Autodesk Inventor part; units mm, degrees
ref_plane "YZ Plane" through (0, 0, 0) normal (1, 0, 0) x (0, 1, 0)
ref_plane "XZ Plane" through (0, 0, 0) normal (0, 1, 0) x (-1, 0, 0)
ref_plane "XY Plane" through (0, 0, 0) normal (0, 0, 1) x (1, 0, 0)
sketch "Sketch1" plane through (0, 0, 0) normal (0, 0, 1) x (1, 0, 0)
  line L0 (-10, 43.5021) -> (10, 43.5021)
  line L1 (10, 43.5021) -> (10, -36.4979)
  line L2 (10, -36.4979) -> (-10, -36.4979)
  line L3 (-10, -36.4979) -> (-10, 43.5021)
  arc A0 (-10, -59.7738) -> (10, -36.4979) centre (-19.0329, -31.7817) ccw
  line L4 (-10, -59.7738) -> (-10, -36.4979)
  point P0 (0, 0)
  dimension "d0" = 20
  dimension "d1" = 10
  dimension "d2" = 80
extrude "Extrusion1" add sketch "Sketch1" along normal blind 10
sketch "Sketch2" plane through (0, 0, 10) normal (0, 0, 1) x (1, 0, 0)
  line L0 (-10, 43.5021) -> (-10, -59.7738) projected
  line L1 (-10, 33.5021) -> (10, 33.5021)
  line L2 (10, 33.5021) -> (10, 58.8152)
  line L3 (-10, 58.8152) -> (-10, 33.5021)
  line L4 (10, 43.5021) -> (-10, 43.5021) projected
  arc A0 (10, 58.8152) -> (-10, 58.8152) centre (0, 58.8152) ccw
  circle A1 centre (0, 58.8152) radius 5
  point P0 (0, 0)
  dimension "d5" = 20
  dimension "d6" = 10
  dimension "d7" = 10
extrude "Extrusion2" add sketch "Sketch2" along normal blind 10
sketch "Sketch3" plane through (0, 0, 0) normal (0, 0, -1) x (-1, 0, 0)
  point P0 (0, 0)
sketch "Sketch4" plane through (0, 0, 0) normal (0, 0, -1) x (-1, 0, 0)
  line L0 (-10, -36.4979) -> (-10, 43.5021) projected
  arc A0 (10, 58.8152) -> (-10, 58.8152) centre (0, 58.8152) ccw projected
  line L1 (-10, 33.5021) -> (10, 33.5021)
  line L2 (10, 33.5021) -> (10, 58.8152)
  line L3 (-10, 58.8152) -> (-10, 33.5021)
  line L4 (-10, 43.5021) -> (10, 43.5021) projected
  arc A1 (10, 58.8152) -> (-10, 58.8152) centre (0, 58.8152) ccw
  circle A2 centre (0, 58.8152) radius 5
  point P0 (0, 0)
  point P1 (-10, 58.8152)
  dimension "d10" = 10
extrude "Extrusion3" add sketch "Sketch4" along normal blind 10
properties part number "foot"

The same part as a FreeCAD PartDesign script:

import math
import FreeCAD as App
import Part
import Sketcher

V = App.Vector
Q = App.Units.Quantity

doc = App.newDocument("Part")
params = doc.addObject("Spreadsheet::Sheet", "Params")
for row, (alias, value) in enumerate([
    ("sketch1_width", "20 mm"),
    ("sketch1_height", "80 mm"),
    ("pad1_length", "10 mm"),
    ("sketch2_diameter", "10 mm"),
    ("sketch2_radius", "10 mm"),
    ("pad2_length", "10 mm"),
    ("sketch3_diameter", "10 mm"),
    ("sketch3_radius", "10 mm"),
    ("pad3_length", "10 mm"),
], start=1):
    params.set(f"A{row}", alias)
    params.set(f"B{row}", "=" + value)
    params.setAlias(f"B{row}", alias)

body = doc.addObject("PartDesign::Body", "Body")

# Sketch on XY plane
sketch1 = body.newObject("Sketcher::SketchObject", "Sketch")
sketch1.AttachmentSupport = (doc.getObject("XY_Plane"), [""])
sketch1.MapMode = "FlatFace"
sketch1.addGeometry(Part.LineSegment(V(10, 44, 0), V(-10, 44, 0)), False)
sketch1.addGeometry(Part.LineSegment(V(-10, 44, 0), V(-10, -60, 0)), False)
sketch1.addGeometry(Part.ArcOfCircle(Part.Circle(V(-19, -32, 0), V(0, 0, 1), 29), math.radians(-72), math.radians(-9)), False)
sketch1.addGeometry(Part.LineSegment(V(10, -36, 0), V(10, 44, 0)), False)
sketch1.addConstraint(Sketcher.Constraint("Coincident", 0, 2, 1, 1))
sketch1.addConstraint(Sketcher.Constraint("Coincident", 1, 2, 2, 1))
sketch1.addConstraint(Sketcher.Constraint("Coincident", 2, 2, 3, 1))
sketch1.addConstraint(Sketcher.Constraint("Coincident", 3, 2, 0, 1))
sketch1.addConstraint(Sketcher.Constraint("Horizontal", 0))
sketch1.addConstraint(Sketcher.Constraint("Vertical", 1))
sketch1.addConstraint(Sketcher.Constraint("Vertical", 3))
sketch1.addConstraint(Sketcher.Constraint("DistanceX", 0, 2, 0, 1, Q("20 mm")))
sketch1.addConstraint(Sketcher.Constraint("DistanceY", 3, 1, 3, 2, Q("80 mm")))
sketch1.addConstraint(Sketcher.Constraint("DistanceX", 0, 2, -1, 1, Q("10 mm")))
sketch1.addConstraint(Sketcher.Constraint("Radius", 2, Q("29.4134 mm")))
sketch1.addConstraint(Sketcher.Constraint("DistanceY", 1, 2, 1, 1, Q("103.276 mm")))
sketch1.addConstraint(Sketcher.Constraint("DistanceY", -1, 1, 0, 2, Q("43.502 mm")))
sketch1.setExpression("Constraints[7]", "Params.sketch1_width")
sketch1.setExpression("Constraints[8]", "Params.sketch1_height")
pad1 = body.newObject("PartDesign::Pad", "Pad")
pad1.Profile = sketch1
pad1.setExpression("Length", "Params.pad1_length")

# Sketch on XY plane
sketch2 = body.newObject("Sketcher::SketchObject", "Sketch001")
sketch2.AttachmentSupport = (doc.getObject("XY_Plane"), [""])
sketch2.MapMode = "FlatFace"
sketch2.AttachmentOffset = App.Placement(V(0, 0, 10), App.Rotation())
sketch2.addGeometry(Part.LineSegment(V(10, 34, 0), V(10, 59, 0)), False)
sketch2.addGeometry(Part.ArcOfCircle(Part.Circle(V(0, 59, 0), V(0, 0, 1), 10), math.radians(0), math.radians(180)), False)
sketch2.addGeometry(Part.LineSegment(V(-10, 59, 0), V(-10, 34, 0)), False)
sketch2.addGeometry(Part.LineSegment(V(-10, 34, 0), V(10, 34, 0)), False)
sketch2.addGeometry(Part.Circle(V(0, 59, 0), V(0, 0, 1), 5), False)
sketch2.addConstraint(Sketcher.Constraint("Tangent", 0, 2, 1, 1))
sketch2.addConstraint(Sketcher.Constraint("Tangent", 1, 2, 2, 1))
sketch2.addConstraint(Sketcher.Constraint("Coincident", 2, 2, 3, 1))
sketch2.addConstraint(Sketcher.Constraint("Coincident", 3, 2, 0, 1))
sketch2.addConstraint(Sketcher.Constraint("Vertical", 0))
sketch2.addConstraint(Sketcher.Constraint("Vertical", 2))
sketch2.addConstraint(Sketcher.Constraint("Horizontal", 3))
sketch2.addConstraint(Sketcher.Constraint("Coincident", 4, 3, 1, 3))
sketch2.addConstraint(Sketcher.Constraint("PointOnObject", 1, 3, -2))
sketch2.addConstraint(Sketcher.Constraint("Diameter", 4, Q("10 mm")))
sketch2.addConstraint(Sketcher.Constraint("Radius", 1, Q("10 mm")))
sketch2.addConstraint(Sketcher.Constraint("DistanceY", 0, 1, 0, 2, Q("25.313 mm")))
sketch2.addConstraint(Sketcher.Constraint("DistanceY", -1, 1, 2, 2, Q("33.502 mm")))
sketch2.setExpression("Constraints[9]", "Params.sketch2_diameter")
sketch2.setExpression("Constraints[10]", "Params.sketch2_radius")
pad2 = body.newObject("PartDesign::Pad", "Pad001")
pad2.Profile = sketch2
pad2.setExpression("Length", "Params.pad2_length")

# Sketch on XY plane
sketch3 = body.newObject("Sketcher::SketchObject", "Sketch002")
sketch3.AttachmentSupport = (doc.getObject("XY_Plane"), [""])
sketch3.MapMode = "FlatFace"
sketch3.addGeometry(Part.LineSegment(V(10, 34, 0), V(-10, 34, 0)), False)
sketch3.addGeometry(Part.LineSegment(V(-10, 34, 0), V(-10, 59, 0)), False)
sketch3.addGeometry(Part.ArcOfCircle(Part.Circle(V(0, 59, 0), V(0, 0, 1), 10), math.radians(0), math.radians(180)), False)
sketch3.addGeometry(Part.LineSegment(V(10, 59, 0), V(10, 34, 0)), False)
sketch3.addGeometry(Part.Circle(V(0, 59, 0), V(0, 0, 1), 5), False)
sketch3.addConstraint(Sketcher.Constraint("Coincident", 0, 2, 1, 1))
sketch3.addConstraint(Sketcher.Constraint("Tangent", 1, 2, 2, 2))
sketch3.addConstraint(Sketcher.Constraint("Tangent", 2, 1, 3, 1))
sketch3.addConstraint(Sketcher.Constraint("Coincident", 3, 2, 0, 1))
sketch3.addConstraint(Sketcher.Constraint("Horizontal", 0))
sketch3.addConstraint(Sketcher.Constraint("Vertical", 1))
sketch3.addConstraint(Sketcher.Constraint("Vertical", 3))
sketch3.addConstraint(Sketcher.Constraint("Coincident", 4, 3, 2, 3))
sketch3.addConstraint(Sketcher.Constraint("PointOnObject", 2, 3, -2))
sketch3.addConstraint(Sketcher.Constraint("Diameter", 4, Q("10 mm")))
sketch3.addConstraint(Sketcher.Constraint("Radius", 2, Q("10 mm")))
sketch3.addConstraint(Sketcher.Constraint("DistanceY", 1, 1, 1, 2, Q("25.313 mm")))
sketch3.addConstraint(Sketcher.Constraint("DistanceY", -1, 1, 0, 2, Q("33.502 mm")))
sketch3.setExpression("Constraints[9]", "Params.sketch3_diameter")
sketch3.setExpression("Constraints[10]", "Params.sketch3_radius")
pad3 = body.newObject("PartDesign::Pad", "Pad002")
pad3.Profile = sketch3
pad3.setExpression("Length", "Params.pad3_length")
pad3.Reversed = True

doc.recompute()
